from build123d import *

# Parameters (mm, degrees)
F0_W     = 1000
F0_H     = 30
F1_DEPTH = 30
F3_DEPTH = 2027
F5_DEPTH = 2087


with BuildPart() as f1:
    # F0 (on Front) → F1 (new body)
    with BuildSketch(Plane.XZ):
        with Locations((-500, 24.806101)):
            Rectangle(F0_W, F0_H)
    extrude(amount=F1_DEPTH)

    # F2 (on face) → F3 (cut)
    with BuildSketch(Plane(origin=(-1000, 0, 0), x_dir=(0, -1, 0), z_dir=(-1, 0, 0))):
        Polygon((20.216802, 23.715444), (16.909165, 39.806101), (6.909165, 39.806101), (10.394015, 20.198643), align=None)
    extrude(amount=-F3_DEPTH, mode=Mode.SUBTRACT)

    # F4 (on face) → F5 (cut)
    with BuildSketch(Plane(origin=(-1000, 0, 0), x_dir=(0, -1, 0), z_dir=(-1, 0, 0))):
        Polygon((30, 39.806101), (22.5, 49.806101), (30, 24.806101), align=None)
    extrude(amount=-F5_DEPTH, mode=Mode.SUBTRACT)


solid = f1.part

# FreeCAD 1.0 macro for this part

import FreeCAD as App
import Part
import Sketcher
Q = App.Units.Quantity


def add_polygon(sketch, points):
    """Adds a closed chain of lines whose ends are joined by coincident constraints."""
    first, n = sketch.GeometryCount, len(points)
    for a, b in zip(points, points[1:] + points[:1]):
        sketch.addGeometry(Part.LineSegment(App.Vector(*a, 0), App.Vector(*b, 0)), False)
    for i in range(n):
        sketch.addConstraint(Sketcher.Constraint("Coincident", first + i, 2, first + (i + 1) % n, 1))

doc = App.newDocument("Part")
body = doc.addObject("PartDesign::Body", "Body")

sketch1 = doc.addObject("Sketcher::SketchObject", "Sketch")
body.addObject(sketch1)
sketch1.AttachmentSupport = (doc.XZ_Plane, [""])
sketch1.MapMode = "FlatFace"
add_polygon(sketch1, [(-1000, 39.806101), (-1000, 9.806101), (0, 9.806101), (0, 39.806101)])
sketch1.addConstraint(Sketcher.Constraint("Vertical", 0))
sketch1.addConstraint(Sketcher.Constraint("Horizontal", 1))
sketch1.addConstraint(Sketcher.Constraint("Vertical", 2))
sketch1.addConstraint(Sketcher.Constraint("Horizontal", 3))
sketch1.addConstraint(Sketcher.Constraint("PointOnObject", 1, 2, -2))
sketch1.addConstraint(Sketcher.Constraint("DistanceX", 1, 1, 1, 2, Q("1000 mm")))
sketch1.addConstraint(Sketcher.Constraint("DistanceY", 0, 2, 0, 1, Q("30 mm")))
sketch1.addConstraint(Sketcher.Constraint("DistanceY", -1, 1, 0, 2, Q("9.806101 mm")))
pad1 = doc.addObject("PartDesign::Pad", "Pad")
body.addObject(pad1)
pad1.Profile = sketch1
pad1.Length = 30

sketch2 = doc.addObject("Sketcher::SketchObject", "Sketch001")
body.addObject(sketch2)
sketch2.AttachmentSupport = (doc.YZ_Plane, [""])
sketch2.MapMode = "FlatFace"
sketch2.AttachmentOffset = App.Placement(App.Vector(0, 0, -1000), App.Rotation())
add_polygon(sketch2, [(-20.216802, 23.715444), (-16.909165, 39.806101), (-6.909165, 39.806101), (-10.394015, 20.198643)])
sketch2.addConstraint(Sketcher.Constraint("Horizontal", 1))
sketch2.addConstraint(Sketcher.Constraint("DistanceX", 1, 1, 1, 2, Q("10 mm")))
sketch2.addConstraint(Sketcher.Constraint("DistanceY", -1, 1, 0, 2, Q("39.806101 mm")))
sketch2.addConstraint(Sketcher.Constraint("DistanceY", 2, 2, 3, 2, Q("3.516801 mm")))
sketch2.addConstraint(Sketcher.Constraint("Distance", 3, Q("10.433362 mm")))
sketch2.addConstraint(Sketcher.Constraint("DistanceX", 2, 2, 1, 2, Q("3.48485 mm")))
sketch2.addConstraint(Sketcher.Constraint("Distance", 0, Q("16.427103 mm")))
sketch2.addConstraint(Sketcher.Constraint("DistanceX", 0, 2, -1, 1, Q("16.909165 mm")))
pocket1 = doc.addObject("PartDesign::Pocket", "Pocket")
body.addObject(pocket1)
pocket1.Profile = sketch2
pocket1.Length = 2027
pocket1.Reversed = True

sketch3 = doc.addObject("Sketcher::SketchObject", "Sketch002")
body.addObject(sketch3)
sketch3.AttachmentSupport = (doc.YZ_Plane, [""])
sketch3.MapMode = "FlatFace"
sketch3.AttachmentOffset = App.Placement(App.Vector(0, 0, -1000), App.Rotation())
add_polygon(sketch3, [(-30, 39.806101), (-22.5, 49.806101), (-30, 24.806101)])
sketch3.addConstraint(Sketcher.Constraint("Vertical", 2))
sketch3.addConstraint(Sketcher.Constraint("DistanceY", 2, 1, 2, 2, Q("15 mm")))
sketch3.addConstraint(Sketcher.Constraint("DistanceX", 1, 2, -1, 1, Q("30 mm")))
sketch3.addConstraint(Sketcher.Constraint("DistanceY", 1, 2, 0, 2, Q("25 mm")))
sketch3.addConstraint(Sketcher.Constraint("Distance", 0, Q("12.5 mm")))
sketch3.addConstraint(Sketcher.Constraint("DistanceY", -1, 1, 0, 2, Q("49.806101 mm")))
pocket2 = doc.addObject("PartDesign::Pocket", "Pocket001")
body.addObject(pocket2)
pocket2.Profile = sketch3
pocket2.Length = 2087
pocket2.Reversed = True

doc.recompute()
